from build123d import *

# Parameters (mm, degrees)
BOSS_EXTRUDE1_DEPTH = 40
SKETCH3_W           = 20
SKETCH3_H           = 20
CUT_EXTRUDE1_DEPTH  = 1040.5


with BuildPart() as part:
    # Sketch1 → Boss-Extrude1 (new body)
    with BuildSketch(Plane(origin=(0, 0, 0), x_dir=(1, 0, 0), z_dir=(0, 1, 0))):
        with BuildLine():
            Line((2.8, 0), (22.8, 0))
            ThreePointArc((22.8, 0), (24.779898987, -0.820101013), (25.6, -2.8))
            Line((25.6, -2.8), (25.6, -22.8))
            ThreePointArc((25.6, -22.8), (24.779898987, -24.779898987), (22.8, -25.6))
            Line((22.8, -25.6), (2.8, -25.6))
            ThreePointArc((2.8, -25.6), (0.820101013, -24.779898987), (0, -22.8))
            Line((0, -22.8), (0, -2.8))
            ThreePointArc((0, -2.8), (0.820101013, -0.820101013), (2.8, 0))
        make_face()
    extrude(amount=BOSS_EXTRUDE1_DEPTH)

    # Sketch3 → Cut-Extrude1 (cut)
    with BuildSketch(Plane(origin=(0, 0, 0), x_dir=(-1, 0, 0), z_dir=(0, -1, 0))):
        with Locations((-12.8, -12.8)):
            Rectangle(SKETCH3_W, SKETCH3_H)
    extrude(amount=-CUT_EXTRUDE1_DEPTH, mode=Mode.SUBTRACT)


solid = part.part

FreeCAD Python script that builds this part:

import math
import FreeCAD as App
import Part
import Sketcher
from FreeCAD import Vector


def add_polygon(sketch, points):
    """Adds a closed chain of lines whose ends are joined by coincident constraints."""
    first, n = sketch.GeometryCount, len(points)
    for a, b in zip(points, points[1:] + points[:1]):
        sketch.addGeometry(Part.LineSegment(App.Vector(*a, 0), App.Vector(*b, 0)), False)
    for i in range(n):
        sketch.addConstraint(Sketcher.Constraint("Coincident", first + i, 2, first + (i + 1) % n, 1))

doc = App.newDocument("Part")
body = doc.addObject("PartDesign::Body", "Body")

sketch1 = body.newObject("Sketcher::SketchObject", "Sketch")
sketch1.AttachmentSupport = (doc.getObject("XZ_Plane"), [""])
sketch1.MapMode = "FlatFace"
sketch1.addGeometry([
    Part.LineSegment(Vector(22.8, 0, 0), Vector(2.8, 0, 0)),
    Part.ArcOfCircle(Part.Circle(Vector(2.8, 2.8, 0), Vector(0, 0, 1), 2.8), math.radians(-180), math.radians(-90)),
    Part.LineSegment(Vector(0, 2.8, 0), Vector(0, 22.8, 0)),
    Part.ArcOfCircle(Part.Circle(Vector(2.8, 22.8, 0), Vector(0, 0, 1), 2.8), math.radians(90), math.radians(180)),
    Part.LineSegment(Vector(2.8, 25.6, 0), Vector(22.8, 25.6, 0)),
    Part.ArcOfCircle(Part.Circle(Vector(22.8, 22.8, 0), Vector(0, 0, 1), 2.8), math.radians(0), math.radians(90)),
    Part.LineSegment(Vector(25.6, 22.8, 0), Vector(25.6, 2.8, 0)),
    Part.ArcOfCircle(Part.Circle(Vector(22.8, 2.8, 0), Vector(0, 0, 1), 2.8), math.radians(-90), math.radians(0)),
], False)
sketch1.addConstraint([
    Sketcher.Constraint("Tangent", 0, 2, 1, 2),
    Sketcher.Constraint("Tangent", 1, 1, 2, 1),
    Sketcher.Constraint("Tangent", 2, 2, 3, 2),
    Sketcher.Constraint("Tangent", 3, 1, 4, 1),
    Sketcher.Constraint("Tangent", 4, 2, 5, 2),
    Sketcher.Constraint("Tangent", 5, 1, 6, 1),
    Sketcher.Constraint("Tangent", 6, 2, 7, 2),
    Sketcher.Constraint("Tangent", 7, 1, 0, 1),
    Sketcher.Constraint("Horizontal", 0),
    Sketcher.Constraint("Vertical", 2),
    Sketcher.Constraint("Horizontal", 4),
    Sketcher.Constraint("Vertical", 6),
    Sketcher.Constraint("Equal", 1, 3),
    Sketcher.Constraint("Equal", 3, 5),
    Sketcher.Constraint("Equal", 5, 7),
    Sketcher.Constraint("PointOnObject", 0, 2, -1),
    Sketcher.Constraint("PointOnObject", 1, 1, -2),
    Sketcher.Constraint("Equal", 4, 2),
    Sketcher.Constraint("Radius", 1, 2.8),
    Sketcher.Constraint("DistanceX", 0, 2, 0, 1, 20.0),
])
pad1 = body.newObject("PartDesign::Pad", "Pad")
pad1.Profile = sketch1
pad1.Length = 40
pad1.Reversed = True

sketch2 = body.newObject("Sketcher::SketchObject", "Sketch001")
sketch2.AttachmentSupport = (doc.getObject("XZ_Plane"), [""])
sketch2.MapMode = "FlatFace"
add_polygon(sketch2, [(23, 3), (23, 23), (3, 23), (3, 3)])
sketch2.addConstraint([
    Sketcher.Constraint("Vertical", 0),
    Sketcher.Constraint("Horizontal", 1),
    Sketcher.Constraint("Vertical", 2),
    Sketcher.Constraint("Horizontal", 3),
    Sketcher.Constraint("Equal", 3, 0),
    Sketcher.Constraint("DistanceX", 1, 2, 1, 1, 20.0),
    Sketcher.Constraint("DistanceX", -1, 1, 0, 2, 22.8),
    Sketcher.Constraint("DistanceY", -1, 1, 0, 2, 22.8),
])
pocket1 = body.newObject("PartDesign::Pocket", "Pocket")
pocket1.Profile = sketch2
pocket1.Length = 1040.5

doc.recompute()
